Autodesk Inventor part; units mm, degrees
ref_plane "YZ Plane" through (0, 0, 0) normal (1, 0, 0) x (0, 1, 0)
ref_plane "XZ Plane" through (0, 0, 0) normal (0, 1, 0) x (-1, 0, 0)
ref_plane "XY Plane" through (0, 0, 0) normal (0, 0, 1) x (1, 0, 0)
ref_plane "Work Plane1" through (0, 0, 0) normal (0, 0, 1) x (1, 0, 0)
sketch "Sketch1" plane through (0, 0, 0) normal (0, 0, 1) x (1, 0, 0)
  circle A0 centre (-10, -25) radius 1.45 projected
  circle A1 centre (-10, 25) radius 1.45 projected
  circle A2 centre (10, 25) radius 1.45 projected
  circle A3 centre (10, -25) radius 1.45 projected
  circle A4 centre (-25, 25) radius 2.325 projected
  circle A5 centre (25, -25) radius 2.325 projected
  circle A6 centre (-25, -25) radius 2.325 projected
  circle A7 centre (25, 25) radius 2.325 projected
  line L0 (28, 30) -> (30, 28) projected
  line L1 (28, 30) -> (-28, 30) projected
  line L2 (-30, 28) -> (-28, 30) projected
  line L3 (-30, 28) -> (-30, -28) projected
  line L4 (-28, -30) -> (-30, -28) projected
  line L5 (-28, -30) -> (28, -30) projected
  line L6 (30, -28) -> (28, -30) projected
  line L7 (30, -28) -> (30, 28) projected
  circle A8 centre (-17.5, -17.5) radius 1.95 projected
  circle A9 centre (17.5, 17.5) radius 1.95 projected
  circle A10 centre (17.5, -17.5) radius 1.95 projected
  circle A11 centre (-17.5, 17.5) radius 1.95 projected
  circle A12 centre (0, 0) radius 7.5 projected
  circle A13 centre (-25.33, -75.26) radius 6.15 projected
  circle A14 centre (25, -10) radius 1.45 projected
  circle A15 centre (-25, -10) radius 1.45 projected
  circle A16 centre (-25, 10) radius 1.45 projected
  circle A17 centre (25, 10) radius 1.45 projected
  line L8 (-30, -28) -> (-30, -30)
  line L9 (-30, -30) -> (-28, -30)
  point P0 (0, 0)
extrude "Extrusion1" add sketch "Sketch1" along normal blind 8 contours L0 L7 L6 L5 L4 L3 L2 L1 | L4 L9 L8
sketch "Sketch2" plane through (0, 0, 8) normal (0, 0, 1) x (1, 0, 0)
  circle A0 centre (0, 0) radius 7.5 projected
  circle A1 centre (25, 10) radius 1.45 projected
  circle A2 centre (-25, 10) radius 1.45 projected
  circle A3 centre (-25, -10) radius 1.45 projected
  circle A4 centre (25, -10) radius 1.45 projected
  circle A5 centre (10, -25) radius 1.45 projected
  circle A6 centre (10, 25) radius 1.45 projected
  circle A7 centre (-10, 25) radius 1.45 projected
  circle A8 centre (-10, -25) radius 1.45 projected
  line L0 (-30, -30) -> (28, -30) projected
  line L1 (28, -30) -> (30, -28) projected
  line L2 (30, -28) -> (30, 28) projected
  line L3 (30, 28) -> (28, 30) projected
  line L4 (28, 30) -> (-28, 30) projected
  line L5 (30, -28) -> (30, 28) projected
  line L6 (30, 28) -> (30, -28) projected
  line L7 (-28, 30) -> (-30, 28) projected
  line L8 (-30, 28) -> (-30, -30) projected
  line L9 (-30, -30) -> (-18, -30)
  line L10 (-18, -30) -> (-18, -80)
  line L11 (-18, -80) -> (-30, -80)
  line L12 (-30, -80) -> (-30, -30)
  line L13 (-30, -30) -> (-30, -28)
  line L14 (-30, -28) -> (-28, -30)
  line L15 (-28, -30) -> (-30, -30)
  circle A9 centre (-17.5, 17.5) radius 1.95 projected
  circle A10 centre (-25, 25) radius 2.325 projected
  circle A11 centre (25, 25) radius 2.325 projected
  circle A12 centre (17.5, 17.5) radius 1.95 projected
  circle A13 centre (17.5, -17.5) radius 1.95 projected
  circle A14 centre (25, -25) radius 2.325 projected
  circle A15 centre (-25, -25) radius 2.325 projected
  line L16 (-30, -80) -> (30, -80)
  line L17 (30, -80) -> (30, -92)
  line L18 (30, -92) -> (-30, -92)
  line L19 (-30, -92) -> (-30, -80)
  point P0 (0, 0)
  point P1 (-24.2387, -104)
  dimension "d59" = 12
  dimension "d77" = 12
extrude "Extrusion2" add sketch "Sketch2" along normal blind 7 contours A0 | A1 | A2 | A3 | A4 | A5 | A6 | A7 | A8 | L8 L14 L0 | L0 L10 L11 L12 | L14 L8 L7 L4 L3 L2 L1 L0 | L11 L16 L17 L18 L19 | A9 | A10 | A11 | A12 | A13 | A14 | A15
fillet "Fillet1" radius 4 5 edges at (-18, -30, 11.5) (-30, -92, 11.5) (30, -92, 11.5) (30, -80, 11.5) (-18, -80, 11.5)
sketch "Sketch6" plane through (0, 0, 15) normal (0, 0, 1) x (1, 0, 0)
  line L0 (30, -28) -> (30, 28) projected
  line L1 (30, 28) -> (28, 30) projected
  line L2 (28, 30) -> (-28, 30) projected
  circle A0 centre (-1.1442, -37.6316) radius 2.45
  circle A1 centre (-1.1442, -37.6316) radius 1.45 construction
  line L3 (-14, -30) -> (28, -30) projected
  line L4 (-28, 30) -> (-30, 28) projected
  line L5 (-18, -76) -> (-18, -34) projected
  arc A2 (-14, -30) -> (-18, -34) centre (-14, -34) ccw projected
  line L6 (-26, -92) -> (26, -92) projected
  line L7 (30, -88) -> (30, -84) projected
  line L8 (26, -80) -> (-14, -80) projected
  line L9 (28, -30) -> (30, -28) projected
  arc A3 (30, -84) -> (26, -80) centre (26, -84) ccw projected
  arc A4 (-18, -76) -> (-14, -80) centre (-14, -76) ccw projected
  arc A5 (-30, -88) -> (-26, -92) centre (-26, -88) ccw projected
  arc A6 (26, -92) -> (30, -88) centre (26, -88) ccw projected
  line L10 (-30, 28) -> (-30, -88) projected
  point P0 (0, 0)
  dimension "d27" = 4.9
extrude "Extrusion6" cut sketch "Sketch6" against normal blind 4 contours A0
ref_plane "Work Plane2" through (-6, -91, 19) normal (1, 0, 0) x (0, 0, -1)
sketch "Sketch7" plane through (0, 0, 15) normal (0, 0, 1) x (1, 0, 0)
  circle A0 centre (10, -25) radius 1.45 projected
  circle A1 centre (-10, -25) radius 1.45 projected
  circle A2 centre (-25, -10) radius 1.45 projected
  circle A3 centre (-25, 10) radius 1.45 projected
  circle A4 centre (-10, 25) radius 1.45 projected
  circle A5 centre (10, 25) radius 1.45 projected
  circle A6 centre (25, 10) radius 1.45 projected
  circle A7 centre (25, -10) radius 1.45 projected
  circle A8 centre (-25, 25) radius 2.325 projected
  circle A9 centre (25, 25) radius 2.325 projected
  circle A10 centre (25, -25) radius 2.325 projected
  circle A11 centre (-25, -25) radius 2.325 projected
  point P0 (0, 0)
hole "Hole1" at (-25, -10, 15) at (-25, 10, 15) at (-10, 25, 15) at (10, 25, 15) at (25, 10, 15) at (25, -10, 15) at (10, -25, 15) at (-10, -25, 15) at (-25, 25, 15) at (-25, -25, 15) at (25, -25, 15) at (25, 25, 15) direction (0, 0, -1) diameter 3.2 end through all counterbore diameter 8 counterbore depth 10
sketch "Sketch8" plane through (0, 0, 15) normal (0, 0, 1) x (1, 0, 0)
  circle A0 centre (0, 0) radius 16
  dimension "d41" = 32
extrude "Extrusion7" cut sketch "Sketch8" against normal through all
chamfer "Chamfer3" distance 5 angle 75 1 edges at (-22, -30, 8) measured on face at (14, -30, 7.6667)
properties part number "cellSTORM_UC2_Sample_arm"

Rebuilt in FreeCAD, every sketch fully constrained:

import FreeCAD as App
import Part
import Sketcher
from FreeCAD import Vector
Q = App.Units.Quantity


def edges_at(feature, points):
    """Names of the edges that pass closest to the given points."""
    edges = feature.Shape.Edges
    near = lambda p: min(range(len(edges)), key=lambda i: edges[i].distToShape(Part.Vertex(*p))[0])
    return sorted({f"Edge{near(p) + 1}" for p in points})

doc = App.newDocument("Part")
body = doc.addObject("PartDesign::Body", "Body")

# Sketch on XY plane
sketch1 = body.newObject("Sketcher::SketchObject", "Sketch")
sketch1.AttachmentSupport = (doc.getObject("XY_Plane"), [""])
sketch1.MapMode = "FlatFace"
sketch1.addGeometry(Part.LineSegment(Vector(30, 28, 0), Vector(28, 30, 0)), False)
sketch1.addGeometry(Part.LineSegment(Vector(28, 30, 0), Vector(-28, 30, 0)), False)
sketch1.addGeometry(Part.LineSegment(Vector(-28, 30, 0), Vector(-30, 28, 0)), False)
sketch1.addGeometry(Part.LineSegment(Vector(-30, 28, 0), Vector(-30, -30, 0)), False)
sketch1.addGeometry(Part.LineSegment(Vector(-30, -30, 0), Vector(28, -30, 0)), False)
sketch1.addGeometry(Part.LineSegment(Vector(28, -30, 0), Vector(30, -28, 0)), False)
sketch1.addGeometry(Part.LineSegment(Vector(30, -28, 0), Vector(30, 28, 0)), False)
sketch1.addGeometry(Part.Circle(Vector(-25, -25, 0), Vector(0, 0, 1), 2.3), False)
sketch1.addGeometry(Part.Circle(Vector(-17.5, -17.5, 0), Vector(0, 0, 1), 1.9), False)
sketch1.addGeometry(Part.Circle(Vector(-25, -10, 0), Vector(0, 0, 1), 1.4), False)
sketch1.addGeometry(Part.Circle(Vector(-10, -25, 0), Vector(0, 0, 1), 1.4), False)
sketch1.addGeometry(Part.Circle(Vector(-25, 10, 0), Vector(0, 0, 1), 1.4), False)
sketch1.addGeometry(Part.Circle(Vector(-25, 25, 0), Vector(0, 0, 1), 2.3), False)
sketch1.addGeometry(Part.Circle(Vector(-17.5, 17.5, 0), Vector(0, 0, 1), 1.9), False)
sketch1.addGeometry(Part.Circle(Vector(-10, 25, 0), Vector(0, 0, 1), 1.4), False)
sketch1.addGeometry(Part.Circle(Vector(10, -25, 0), Vector(0, 0, 1), 1.4), False)
sketch1.addGeometry(Part.Circle(Vector(0, 0, 0), Vector(0, 0, 1), 7.5), False)
sketch1.addGeometry(Part.Circle(Vector(17.5, -17.5, 0), Vector(0, 0, 1), 1.9), False)
sketch1.addGeometry(Part.Circle(Vector(25, -25, 0), Vector(0, 0, 1), 2.3), False)
sketch1.addGeometry(Part.Circle(Vector(25, -10, 0), Vector(0, 0, 1), 1.4), False)
sketch1.addGeometry(Part.Circle(Vector(10, 25, 0), Vector(0, 0, 1), 1.4), False)
sketch1.addGeometry(Part.Circle(Vector(25, 10, 0), Vector(0, 0, 1), 1.4), False)
sketch1.addGeometry(Part.Circle(Vector(17.5, 17.5, 0), Vector(0, 0, 1), 1.9), False)
sketch1.addGeometry(Part.Circle(Vector(25, 25, 0), Vector(0, 0, 1), 2.3), False)
sketch1.addConstraint(Sketcher.Constraint("Coincident", 0, 2, 1, 1))
sketch1.addConstraint(Sketcher.Constraint("Coincident", 1, 2, 2, 1))
sketch1.addConstraint(Sketcher.Constraint("Coincident", 2, 2, 3, 1))
sketch1.addConstraint(Sketcher.Constraint("Coincident", 3, 2, 4, 1))
sketch1.addConstraint(Sketcher.Constraint("Coincident", 4, 2, 5, 1))
sketch1.addConstraint(Sketcher.Constraint("Coincident", 5, 2, 6, 1))
sketch1.addConstraint(Sketcher.Constraint("Coincident", 6, 2, 0, 1))
sketch1.addConstraint(Sketcher.Constraint("Horizontal", 1))
sketch1.addConstraint(Sketcher.Constraint("Vertical", 3))
sketch1.addConstraint(Sketcher.Constraint("Horizontal", 4))
sketch1.addConstraint(Sketcher.Constraint("Vertical", 6))
sketch1.addConstraint(Sketcher.Constraint("Coincident", 16, 3, -1, 1))
sketch1.addConstraint(Sketcher.Constraint("Equal", 9, 10))
sketch1.addConstraint(Sketcher.Constraint("Equal", 10, 11))
sketch1.addConstraint(Sketcher.Constraint("Equal", 7, 12))
sketch1.addConstraint(Sketcher.Constraint("Equal", 8, 13))
sketch1.addConstraint(Sketcher.Constraint("Equal", 11, 14))
sketch1.addConstraint(Sketcher.Constraint("Equal", 14, 15))
sketch1.addConstraint(Sketcher.Constraint("Equal", 13, 17))
sketch1.addConstraint(Sketcher.Constraint("Equal", 12, 18))
sketch1.addConstraint(Sketcher.Constraint("Equal", 15, 19))
sketch1.addConstraint(Sketcher.Constraint("Equal", 19, 20))
sketch1.addConstraint(Sketcher.Constraint("Equal", 20, 21))
sketch1.addConstraint(Sketcher.Constraint("Equal", 17, 22))
sketch1.addConstraint(Sketcher.Constraint("Equal", 18, 23))
sketch1.addConstraint(Sketcher.Constraint("Symmetric", 14, 3, 15, 3, -1, 1))
sketch1.addConstraint(Sketcher.Constraint("Symmetric", 13, 3, 17, 3, -1, 1))
sketch1.addConstraint(Sketcher.Constraint("Symmetric", 12, 3, 18, 3, -1, 1))
sketch1.addConstraint(Sketcher.Constraint("Symmetric", 11, 3, 19, 3, -1, 1))
sketch1.addConstraint(Sketcher.Constraint("Symmetric", 10, 3, 20, 3, -1, 1))
sketch1.addConstraint(Sketcher.Constraint("Symmetric", 9, 3, 21, 3, -1, 1))
sketch1.addConstraint(Sketcher.Constraint("Symmetric", 8, 3, 22, 3, -1, 1))
sketch1.addConstraint(Sketcher.Constraint("Symmetric", 7, 3, 23, 3, -1, 1))
sketch1.addConstraint(Sketcher.Constraint("Symmetric", 1, 2, 4, 2, -1, 1))
sketch1.addConstraint(Sketcher.Constraint("Symmetric", 2, 2, 5, 2, -1, 1))
sketch1.addConstraint(Sketcher.Constraint("Symmetric", 10, 3, 15, 3, -2))
sketch1.addConstraint(Sketcher.Constraint("Symmetric", 8, 3, 17, 3, -2))
sketch1.addConstraint(Sketcher.Constraint("Symmetric", 7, 3, 18, 3, -2))
sketch1.addConstraint(Sketcher.Constraint("Symmetric", 9, 3, 19, 3, -2))
sketch1.addConstraint(Sketcher.Constraint("Perpendicular", 0, 2))
sketch1.addConstraint(Sketcher.Constraint("Horizontal", 7, 3, 10, 3))
sketch1.addConstraint(Sketcher.Constraint("Horizontal", 2, 2, 6, 2))
sketch1.addConstraint(Sketcher.Constraint("Vertical", 7, 3, 9, 3))
sketch1.addConstraint(Sketcher.Constraint("Vertical", 0, 2, 4, 2))
sketch1.addConstraint(Sketcher.Constraint("Equal", 4, 3))
sketch1.addConstraint(Sketcher.Constraint("Diameter", 16, Q("15 mm")))
sketch1.addConstraint(Sketcher.Constraint("Diameter", 8, Q("3.9 mm")))
sketch1.addConstraint(Sketcher.Constraint("Diameter", 9, Q("2.9 mm")))
sketch1.addConstraint(Sketcher.Constraint("Diameter", 7, Q("4.65 mm")))
sketch1.addConstraint(Sketcher.Constraint("DistanceX", 1, 2, 1, 1, Q("56 mm")))
sketch1.addConstraint(Sketcher.Constraint("DistanceX", 4, 1, 4, 2, Q("58 mm")))
sketch1.addConstraint(Sketcher.Constraint("DistanceX", 7, 3, -1, 1, Q("25 mm")))
sketch1.addConstraint(Sketcher.Constraint("DistanceY", 7, 3, -1, 1, Q("25 mm")))
sketch1.addConstraint(Sketcher.Constraint("DistanceY", 9, 3, -1, 1, Q("10 mm")))
sketch1.addConstraint(Sketcher.Constraint("DistanceX", 10, 3, -1, 1, Q("10 mm")))
sketch1.addConstraint(Sketcher.Constraint("DistanceY", 8, 3, 13, 3, Q("35 mm")))
sketch1.addConstraint(Sketcher.Constraint("DistanceX", 8, 3, 17, 3, Q("35 mm")))
pad1 = body.newObject("PartDesign::Pad", "Pad")
pad1.Profile = sketch1
pad1.Length = 8

# Sketch on XY plane
sketch2 = body.newObject("Sketcher::SketchObject", "Sketch001")
sketch2.AttachmentSupport = (doc.getObject("XY_Plane"), [""])
sketch2.MapMode = "FlatFace"
sketch2.AttachmentOffset = App.Placement(Vector(0, 0, 8), App.Rotation())
sketch2.addGeometry(Part.LineSegment(Vector(-30, 28, 0), Vector(-30, -92, 0)), False)
sketch2.addGeometry(Part.LineSegment(Vector(-30, -92, 0), Vector(30, -92, 0)), False)
sketch2.addGeometry(Part.LineSegment(Vector(30, -92, 0), Vector(30, -80, 0)), False)
sketch2.addGeometry(Part.LineSegment(Vector(30, -80, 0), Vector(-18, -80, 0)), False)
sketch2.addGeometry(Part.LineSegment(Vector(-18, -80, 0), Vector(-18, -30, 0)), False)
sketch2.addGeometry(Part.LineSegment(Vector(-18, -30, 0), Vector(28, -30, 0)), False)
sketch2.addGeometry(Part.LineSegment(Vector(28, -30, 0), Vector(30, -28, 0)), False)
sketch2.addGeometry(Part.LineSegment(Vector(30, -28, 0), Vector(30, 28, 0)), False)
sketch2.addGeometry(Part.LineSegment(Vector(30, 28, 0), Vector(28, 30, 0)), False)
sketch2.addGeometry(Part.LineSegment(Vector(28, 30, 0), Vector(-28, 30, 0)), False)
sketch2.addGeometry(Part.LineSegment(Vector(-28, 30, 0), Vector(-30, 28, 0)), False)
sketch2.addConstraint(Sketcher.Constraint("Coincident", 0, 2, 1, 1))
sketch2.addConstraint(Sketcher.Constraint("Coincident", 1, 2, 2, 1))
sketch2.addConstraint(Sketcher.Constraint("Coincident", 2, 2, 3, 1))
sketch2.addConstraint(Sketcher.Constraint("Coincident", 3, 2, 4, 1))
sketch2.addConstraint(Sketcher.Constraint("Coincident", 4, 2, 5, 1))
sketch2.addConstraint(Sketcher.Constraint("Coincident", 5, 2, 6, 1))
sketch2.addConstraint(Sketcher.Constraint("Coincident", 6, 2, 7, 1))
sketch2.addConstraint(Sketcher.Constraint("Coincident", 7, 2, 8, 1))
sketch2.addConstraint(Sketcher.Constraint("Coincident", 8, 2, 9, 1))
sketch2.addConstraint(Sketcher.Constraint("Coincident", 9, 2, 10, 1))
sketch2.addConstraint(Sketcher.Constraint("Coincident", 10, 2, 0, 1))
sketch2.addConstraint(Sketcher.Constraint("Vertical", 0))
sketch2.addConstraint(Sketcher.Constraint("Horizontal", 1))
sketch2.addConstraint(Sketcher.Constraint("Vertical", 2))
sketch2.addConstraint(Sketcher.Constraint("Horizontal", 3))
sketch2.addConstraint(Sketcher.Constraint("Vertical", 4))
sketch2.addConstraint(Sketcher.Constraint("Horizontal", 5))
sketch2.addConstraint(Sketcher.Constraint("Vertical", 7))
sketch2.addConstraint(Sketcher.Constraint("Horizontal", 9))
sketch2.addConstraint(Sketcher.Constraint("Symmetric", 5, 2, 9, 2, -1, 1))
sketch2.addConstraint(Sketcher.Constraint("Symmetric", 6, 2, 10, 2, -1, 1))
sketch2.addConstraint(Sketcher.Constraint("Perpendicular", 6, 8))
sketch2.addConstraint(Sketcher.Constraint("Horizontal", 7, 2, 10, 2))
sketch2.addConstraint(Sketcher.Constraint("Vertical", 2, 2, 6, 2))
sketch2.addConstraint(Sketcher.Constraint("Vertical", 5, 2, 8, 2))
sketch2.addConstraint(Sketcher.Constraint("Equal", 9, 7))
sketch2.addConstraint(Sketcher.Constraint("DistanceY", 2, 1, 2, 2, Q("12 mm")))
sketch2.addConstraint(Sketcher.Constraint("DistanceX", 0, 2, 3, 2, Q("12 mm")))
sketch2.addConstraint(Sketcher.Constraint("DistanceX", 1, 1, 1, 2, Q("60 mm")))
sketch2.addConstraint(Sketcher.Constraint("DistanceX", 5, 1, 5, 2, Q("46 mm")))
sketch2.addConstraint(Sketcher.Constraint("DistanceY", 0, 2, 0, 1, Q("120 mm")))
pad2 = body.newObject("PartDesign::Pad", "Pad001")
pad2.Profile = sketch2
pad2.Length = 7
doc.recompute()

fillet = body.newObject("PartDesign::Fillet", "Fillet")
fillet.Base = (pad2, edges_at(pad2, [
    (-18, -30, 11.5),
    (-30, -92, 11.5),
    (30, -92, 11.5),
    (30, -80, 11.5),
    (-18, -80, 11.5),
]))
fillet.Radius = 4

# Sketch on XY plane
sketch3 = body.newObject("Sketcher::SketchObject", "Sketch002")
sketch3.AttachmentSupport = (doc.getObject("XY_Plane"), [""])
sketch3.MapMode = "FlatFace"
sketch3.AttachmentOffset = App.Placement(Vector(0, 0, 15), App.Rotation())
sketch3.addGeometry(Part.Circle(Vector(-1.1, -37.6, 0), Vector(0, 0, 1), 2.5), False)
sketch3.addConstraint(Sketcher.Constraint("Diameter", 0, Q("4.9 mm")))
sketch3.addConstraint(Sketcher.Constraint("DistanceX", 0, 3, -1, 1, Q("1.1442 mm")))
sketch3.addConstraint(Sketcher.Constraint("DistanceY", 0, 3, -1, 1, Q("37.6316 mm")))
pocket1 = body.newObject("PartDesign::Pocket", "Pocket")
pocket1.Profile = sketch3
pocket1.Length = 4

# Sketch on XY plane
sketch4 = body.newObject("Sketcher::SketchObject", "Sketch003")
sketch4.AttachmentSupport = (doc.getObject("XY_Plane"), [""])
sketch4.MapMode = "FlatFace"
sketch4.AttachmentOffset = App.Placement(Vector(0, 0, 15), App.Rotation())
sketch4.addGeometry(Part.Circle(Vector(-25, -10, 0), Vector(0, 0, 1), 1.6), False)
sketch4.addGeometry(Part.Circle(Vector(-25, 10, 0), Vector(0, 0, 1), 1.6), False)
sketch4.addGeometry(Part.Circle(Vector(-10, 25, 0), Vector(0, 0, 1), 1.6), False)
sketch4.addGeometry(Part.Circle(Vector(10, 25, 0), Vector(0, 0, 1), 1.6), False)
sketch4.addGeometry(Part.Circle(Vector(25, 10, 0), Vector(0, 0, 1), 1.6), False)
sketch4.addGeometry(Part.Circle(Vector(25, -10, 0), Vector(0, 0, 1), 1.6), False)
sketch4.addGeometry(Part.Circle(Vector(10, -25, 0), Vector(0, 0, 1), 1.6), False)
sketch4.addGeometry(Part.Circle(Vector(-10, -25, 0), Vector(0, 0, 1), 1.6), False)
sketch4.addGeometry(Part.Circle(Vector(-25, 25, 0), Vector(0, 0, 1), 1.6), False)
sketch4.addGeometry(Part.Circle(Vector(-25, -25, 0), Vector(0, 0, 1), 1.6), False)
sketch4.addGeometry(Part.Circle(Vector(25, -25, 0), Vector(0, 0, 1), 1.6), False)
sketch4.addGeometry(Part.Circle(Vector(25, 25, 0), Vector(0, 0, 1), 1.6), False)
sketch4.addConstraint(Sketcher.Constraint("Equal", 0, 1))
sketch4.addConstraint(Sketcher.Constraint("Equal", 1, 2))
sketch4.addConstraint(Sketcher.Constraint("Equal", 2, 3))
sketch4.addConstraint(Sketcher.Constraint("Equal", 3, 4))
sketch4.addConstraint(Sketcher.Constraint("Equal", 4, 5))
sketch4.addConstraint(Sketcher.Constraint("Equal", 5, 6))
sketch4.addConstraint(Sketcher.Constraint("Equal", 6, 7))
sketch4.addConstraint(Sketcher.Constraint("Equal", 7, 8))
sketch4.addConstraint(Sketcher.Constraint("Equal", 8, 9))
sketch4.addConstraint(Sketcher.Constraint("Equal", 9, 10))
sketch4.addConstraint(Sketcher.Constraint("Equal", 10, 11))
sketch4.addConstraint(Sketcher.Constraint("Symmetric", 0, 3, 4, 3, -1, 1))
sketch4.addConstraint(Sketcher.Constraint("Symmetric", 1, 3, 5, 3, -1, 1))
sketch4.addConstraint(Sketcher.Constraint("Symmetric", 2, 3, 6, 3, -1, 1))
sketch4.addConstraint(Sketcher.Constraint("Symmetric", 3, 3, 7, 3, -1, 1))
sketch4.addConstraint(Sketcher.Constraint("Symmetric", 8, 3, 10, 3, -1, 1))
sketch4.addConstraint(Sketcher.Constraint("Symmetric", 9, 3, 11, 3, -1, 1))
sketch4.addConstraint(Sketcher.Constraint("Symmetric", 2, 3, 3, 3, -2))
sketch4.addConstraint(Sketcher.Constraint("Symmetric", 1, 3, 4, 3, -2))
sketch4.addConstraint(Sketcher.Constraint("Symmetric", 9, 3, 10, 3, -2))
sketch4.addConstraint(Sketcher.Constraint("Horizontal", 3, 3, 8, 3))
sketch4.addConstraint(Sketcher.Constraint("Vertical", 1, 3, 8, 3))
sketch4.addConstraint(Sketcher.Constraint("Diameter", 0, Q("3.2 mm")))
sketch4.addConstraint(Sketcher.Constraint("DistanceX", 0, 3, -1, 1, Q("25 mm")))
sketch4.addConstraint(Sketcher.Constraint("DistanceY", 0, 3, -1, 1, Q("10 mm")))
sketch4.addConstraint(Sketcher.Constraint("DistanceX", 2, 3, -1, 1, Q("10 mm")))
sketch4.addConstraint(Sketcher.Constraint("DistanceY", -1, 1, 2, 3, Q("25 mm")))
doc.recompute()
hole = body.newObject("PartDesign::Hole", "Hole")
hole.Profile = sketch4
hole.ThreadType = "None"
hole.Diameter = 3.2
hole.DepthType = "ThroughAll"
hole.HoleCutType = "Counterbore"
hole.HoleCutDiameter = 8
hole.HoleCutDepth = 10

# Sketch on XY plane
sketch5 = body.newObject("Sketcher::SketchObject", "Sketch004")
sketch5.AttachmentSupport = (doc.getObject("XY_Plane"), [""])
sketch5.MapMode = "FlatFace"
sketch5.AttachmentOffset = App.Placement(Vector(0, 0, 15), App.Rotation())
sketch5.addGeometry(Part.Circle(Vector(0, 0, 0), Vector(0, 0, 1), 16), False)
sketch5.addConstraint(Sketcher.Constraint("Coincident", 0, 3, -1, 1))
sketch5.addConstraint(Sketcher.Constraint("Diameter", 0, Q("32 mm")))
pocket2 = body.newObject("PartDesign::Pocket", "Pocket001")
pocket2.Profile = sketch5
pocket2.Type = "ThroughAll"
doc.recompute()

chamfer = body.newObject("PartDesign::Chamfer", "Chamfer")
chamfer.Base = (pocket2, edges_at(pocket2, [(-22, -30, 8)]))
chamfer.ChamferType = "Distance and Angle"
chamfer.Size = 5
chamfer.Angle = 75
chamfer.FlipDirection = True

doc.recompute()
